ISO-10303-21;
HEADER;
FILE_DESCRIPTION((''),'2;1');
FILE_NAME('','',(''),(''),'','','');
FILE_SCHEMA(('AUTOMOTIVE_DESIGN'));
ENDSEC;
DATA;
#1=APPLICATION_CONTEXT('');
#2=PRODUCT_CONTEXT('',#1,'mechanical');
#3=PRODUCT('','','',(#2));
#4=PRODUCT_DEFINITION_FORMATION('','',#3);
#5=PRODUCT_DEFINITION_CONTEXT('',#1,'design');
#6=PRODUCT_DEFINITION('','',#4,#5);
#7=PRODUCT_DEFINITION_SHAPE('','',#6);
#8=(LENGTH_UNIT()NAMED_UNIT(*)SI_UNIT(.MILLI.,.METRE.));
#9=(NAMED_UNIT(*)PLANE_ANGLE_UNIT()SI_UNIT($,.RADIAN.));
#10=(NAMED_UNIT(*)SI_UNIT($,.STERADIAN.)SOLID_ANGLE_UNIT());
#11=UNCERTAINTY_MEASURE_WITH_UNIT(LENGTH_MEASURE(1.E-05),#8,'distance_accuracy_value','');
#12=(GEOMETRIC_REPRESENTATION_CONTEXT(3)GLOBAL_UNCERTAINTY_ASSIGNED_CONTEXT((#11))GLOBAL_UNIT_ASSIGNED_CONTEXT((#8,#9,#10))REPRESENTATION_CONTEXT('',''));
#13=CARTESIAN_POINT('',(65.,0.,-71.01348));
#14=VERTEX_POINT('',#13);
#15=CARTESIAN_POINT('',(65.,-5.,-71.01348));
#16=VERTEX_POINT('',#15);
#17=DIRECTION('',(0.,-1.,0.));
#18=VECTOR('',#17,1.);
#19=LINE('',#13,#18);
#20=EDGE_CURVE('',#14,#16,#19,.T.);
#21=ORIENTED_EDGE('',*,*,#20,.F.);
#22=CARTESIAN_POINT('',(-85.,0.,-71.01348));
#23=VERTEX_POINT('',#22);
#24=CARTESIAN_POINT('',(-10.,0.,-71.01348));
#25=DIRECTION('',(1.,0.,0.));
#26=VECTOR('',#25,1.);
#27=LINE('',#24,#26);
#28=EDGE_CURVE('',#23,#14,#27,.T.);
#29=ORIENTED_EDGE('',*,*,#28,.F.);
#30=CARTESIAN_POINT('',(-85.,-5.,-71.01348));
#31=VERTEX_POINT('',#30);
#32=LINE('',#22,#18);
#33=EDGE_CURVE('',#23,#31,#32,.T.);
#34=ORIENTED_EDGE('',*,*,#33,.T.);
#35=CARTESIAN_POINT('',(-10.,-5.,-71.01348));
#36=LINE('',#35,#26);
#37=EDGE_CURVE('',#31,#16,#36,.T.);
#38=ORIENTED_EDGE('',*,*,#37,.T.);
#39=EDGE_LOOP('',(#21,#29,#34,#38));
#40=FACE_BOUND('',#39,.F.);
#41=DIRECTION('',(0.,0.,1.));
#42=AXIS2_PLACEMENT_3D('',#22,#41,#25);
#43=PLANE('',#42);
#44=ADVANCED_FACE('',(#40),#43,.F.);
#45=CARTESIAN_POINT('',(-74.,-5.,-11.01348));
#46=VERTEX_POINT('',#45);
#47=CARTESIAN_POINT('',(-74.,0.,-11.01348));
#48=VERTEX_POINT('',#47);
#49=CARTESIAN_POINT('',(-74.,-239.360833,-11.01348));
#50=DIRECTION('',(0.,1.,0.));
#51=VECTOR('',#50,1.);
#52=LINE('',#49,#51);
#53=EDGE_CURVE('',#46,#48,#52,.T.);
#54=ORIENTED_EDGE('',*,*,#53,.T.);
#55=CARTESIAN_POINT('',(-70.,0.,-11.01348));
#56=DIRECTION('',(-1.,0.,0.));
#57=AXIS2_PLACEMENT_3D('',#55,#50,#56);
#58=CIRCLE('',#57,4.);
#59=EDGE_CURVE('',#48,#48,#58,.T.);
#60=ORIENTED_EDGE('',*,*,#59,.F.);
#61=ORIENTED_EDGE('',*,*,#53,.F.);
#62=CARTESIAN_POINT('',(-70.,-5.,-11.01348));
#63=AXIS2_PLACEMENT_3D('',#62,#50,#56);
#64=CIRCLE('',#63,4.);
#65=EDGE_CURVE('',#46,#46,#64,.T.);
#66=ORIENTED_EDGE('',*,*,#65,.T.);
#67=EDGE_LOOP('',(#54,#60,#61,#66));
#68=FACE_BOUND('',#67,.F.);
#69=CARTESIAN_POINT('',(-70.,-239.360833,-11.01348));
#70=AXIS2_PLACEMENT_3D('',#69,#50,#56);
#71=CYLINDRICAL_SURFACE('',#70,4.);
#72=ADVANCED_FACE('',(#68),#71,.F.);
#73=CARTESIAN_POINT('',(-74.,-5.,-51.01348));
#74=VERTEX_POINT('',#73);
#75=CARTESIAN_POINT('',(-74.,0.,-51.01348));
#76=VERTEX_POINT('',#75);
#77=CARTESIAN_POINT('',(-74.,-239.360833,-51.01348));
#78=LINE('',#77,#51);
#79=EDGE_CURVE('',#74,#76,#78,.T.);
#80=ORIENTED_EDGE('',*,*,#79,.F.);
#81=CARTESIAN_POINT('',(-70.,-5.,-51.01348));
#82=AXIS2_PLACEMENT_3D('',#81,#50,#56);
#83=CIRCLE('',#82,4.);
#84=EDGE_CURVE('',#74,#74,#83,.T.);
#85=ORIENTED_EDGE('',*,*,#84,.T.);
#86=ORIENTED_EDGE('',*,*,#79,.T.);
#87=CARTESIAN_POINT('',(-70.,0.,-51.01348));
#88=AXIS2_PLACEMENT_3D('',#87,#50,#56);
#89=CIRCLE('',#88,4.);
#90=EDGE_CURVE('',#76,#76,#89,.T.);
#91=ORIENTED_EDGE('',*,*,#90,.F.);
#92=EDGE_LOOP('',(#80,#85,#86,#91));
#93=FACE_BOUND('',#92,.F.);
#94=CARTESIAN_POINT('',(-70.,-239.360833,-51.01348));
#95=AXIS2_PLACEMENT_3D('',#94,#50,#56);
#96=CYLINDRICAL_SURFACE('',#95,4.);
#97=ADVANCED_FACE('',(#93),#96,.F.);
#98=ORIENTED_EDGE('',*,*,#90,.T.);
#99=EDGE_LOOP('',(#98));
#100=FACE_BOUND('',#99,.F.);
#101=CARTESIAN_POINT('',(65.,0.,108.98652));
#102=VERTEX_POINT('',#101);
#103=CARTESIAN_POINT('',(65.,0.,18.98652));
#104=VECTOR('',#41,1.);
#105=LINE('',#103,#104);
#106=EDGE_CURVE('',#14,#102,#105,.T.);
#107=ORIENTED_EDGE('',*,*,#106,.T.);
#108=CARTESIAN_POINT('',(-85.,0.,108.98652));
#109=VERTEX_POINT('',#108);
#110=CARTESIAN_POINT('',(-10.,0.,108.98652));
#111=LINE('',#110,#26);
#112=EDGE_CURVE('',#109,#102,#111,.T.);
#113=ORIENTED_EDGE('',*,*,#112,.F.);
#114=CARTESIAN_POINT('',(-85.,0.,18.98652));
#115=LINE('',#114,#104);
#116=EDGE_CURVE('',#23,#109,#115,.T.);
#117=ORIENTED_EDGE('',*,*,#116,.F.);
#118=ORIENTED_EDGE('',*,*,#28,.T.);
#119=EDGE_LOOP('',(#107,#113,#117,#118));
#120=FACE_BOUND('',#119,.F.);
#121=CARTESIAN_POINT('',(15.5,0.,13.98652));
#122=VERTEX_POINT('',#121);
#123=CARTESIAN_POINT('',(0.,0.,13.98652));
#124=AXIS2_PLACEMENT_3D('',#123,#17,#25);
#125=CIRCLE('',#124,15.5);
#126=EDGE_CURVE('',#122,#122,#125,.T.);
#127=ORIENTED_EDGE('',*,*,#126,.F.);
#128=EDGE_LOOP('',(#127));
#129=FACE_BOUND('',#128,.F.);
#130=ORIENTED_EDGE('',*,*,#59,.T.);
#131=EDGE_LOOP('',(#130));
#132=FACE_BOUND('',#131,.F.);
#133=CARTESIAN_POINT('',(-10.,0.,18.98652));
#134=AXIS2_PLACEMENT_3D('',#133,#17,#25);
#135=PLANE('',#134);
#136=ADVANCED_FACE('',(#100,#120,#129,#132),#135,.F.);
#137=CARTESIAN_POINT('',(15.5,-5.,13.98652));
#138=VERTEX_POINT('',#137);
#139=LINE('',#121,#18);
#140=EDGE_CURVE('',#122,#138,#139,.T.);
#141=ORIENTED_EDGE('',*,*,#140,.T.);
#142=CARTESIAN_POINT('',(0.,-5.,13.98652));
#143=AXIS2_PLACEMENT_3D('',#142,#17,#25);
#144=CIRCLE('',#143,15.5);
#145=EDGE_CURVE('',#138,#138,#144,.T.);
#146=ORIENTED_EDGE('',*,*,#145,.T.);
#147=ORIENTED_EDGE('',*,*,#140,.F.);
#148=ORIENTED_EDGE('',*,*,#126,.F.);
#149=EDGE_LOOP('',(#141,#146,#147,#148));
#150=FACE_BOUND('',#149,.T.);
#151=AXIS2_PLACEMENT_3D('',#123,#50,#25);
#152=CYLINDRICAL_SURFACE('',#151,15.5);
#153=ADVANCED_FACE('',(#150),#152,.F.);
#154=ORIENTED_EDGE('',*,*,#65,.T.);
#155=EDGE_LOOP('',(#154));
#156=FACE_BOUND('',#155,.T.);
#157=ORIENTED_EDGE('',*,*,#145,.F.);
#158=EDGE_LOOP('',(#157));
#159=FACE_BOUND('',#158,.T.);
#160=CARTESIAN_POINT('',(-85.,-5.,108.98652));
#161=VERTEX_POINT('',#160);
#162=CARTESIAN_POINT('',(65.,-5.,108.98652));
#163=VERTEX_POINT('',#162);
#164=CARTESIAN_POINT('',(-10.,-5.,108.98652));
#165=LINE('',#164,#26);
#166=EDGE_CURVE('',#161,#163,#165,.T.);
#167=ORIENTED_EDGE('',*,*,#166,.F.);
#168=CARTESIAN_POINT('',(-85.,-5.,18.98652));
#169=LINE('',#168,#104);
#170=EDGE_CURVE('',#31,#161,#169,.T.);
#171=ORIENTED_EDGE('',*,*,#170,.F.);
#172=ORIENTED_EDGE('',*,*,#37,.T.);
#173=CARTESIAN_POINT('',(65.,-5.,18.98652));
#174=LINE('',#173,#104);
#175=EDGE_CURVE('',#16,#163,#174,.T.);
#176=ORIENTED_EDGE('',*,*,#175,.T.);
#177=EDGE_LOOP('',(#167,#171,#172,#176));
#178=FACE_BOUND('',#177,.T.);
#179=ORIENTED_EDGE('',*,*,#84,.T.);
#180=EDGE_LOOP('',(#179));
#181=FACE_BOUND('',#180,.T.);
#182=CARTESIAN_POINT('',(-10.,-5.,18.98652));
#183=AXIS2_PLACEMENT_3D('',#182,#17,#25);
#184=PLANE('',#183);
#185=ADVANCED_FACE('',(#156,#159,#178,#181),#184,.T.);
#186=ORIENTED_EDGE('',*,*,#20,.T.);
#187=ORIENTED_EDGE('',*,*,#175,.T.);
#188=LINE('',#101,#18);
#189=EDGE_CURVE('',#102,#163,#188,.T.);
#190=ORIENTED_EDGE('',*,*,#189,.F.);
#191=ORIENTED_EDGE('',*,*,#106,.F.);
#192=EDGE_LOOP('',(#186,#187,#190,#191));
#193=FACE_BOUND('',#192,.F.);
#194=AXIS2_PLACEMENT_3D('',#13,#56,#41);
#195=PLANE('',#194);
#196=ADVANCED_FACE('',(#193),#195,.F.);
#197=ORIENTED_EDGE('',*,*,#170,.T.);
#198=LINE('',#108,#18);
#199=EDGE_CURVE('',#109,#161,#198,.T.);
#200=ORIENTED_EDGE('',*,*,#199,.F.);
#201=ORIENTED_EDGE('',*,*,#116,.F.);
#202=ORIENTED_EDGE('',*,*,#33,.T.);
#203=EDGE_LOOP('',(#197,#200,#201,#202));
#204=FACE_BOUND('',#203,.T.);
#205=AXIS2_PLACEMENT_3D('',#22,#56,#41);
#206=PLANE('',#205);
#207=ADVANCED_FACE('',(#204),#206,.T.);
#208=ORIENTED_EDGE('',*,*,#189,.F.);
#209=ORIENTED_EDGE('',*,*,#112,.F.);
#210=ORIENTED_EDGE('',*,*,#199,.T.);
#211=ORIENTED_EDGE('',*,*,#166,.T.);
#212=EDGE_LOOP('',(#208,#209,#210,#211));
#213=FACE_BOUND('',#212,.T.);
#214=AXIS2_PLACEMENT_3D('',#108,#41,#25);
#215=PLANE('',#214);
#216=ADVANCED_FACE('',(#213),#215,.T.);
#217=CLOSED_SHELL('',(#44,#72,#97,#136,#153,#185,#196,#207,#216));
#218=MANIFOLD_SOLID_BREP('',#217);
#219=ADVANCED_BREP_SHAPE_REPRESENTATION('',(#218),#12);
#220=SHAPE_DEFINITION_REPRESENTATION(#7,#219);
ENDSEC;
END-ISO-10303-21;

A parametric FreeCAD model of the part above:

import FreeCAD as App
import Part
import Sketcher

V = App.Vector
Q = App.Units.Quantity

doc = App.newDocument("Part")
body = doc.addObject("PartDesign::Body", "Body")

sketch1 = body.newObject("Sketcher::SketchObject", "Sketch")
sketch1.AttachmentSupport = (doc.getObject("XZ_Plane"), [""])
sketch1.MapMode = "FlatFace"
sketch1.addGeometry([
    Part.LineSegment(V(-85, 108.98652, 0), V(-85, -71.01348, 0)),
    Part.LineSegment(V(-85, -71.01348, 0), V(65, -71.01348, 0)),
    Part.LineSegment(V(65, -71.01348, 0), V(65, 108.98652, 0)),
    Part.LineSegment(V(65, 108.98652, 0), V(-85, 108.98652, 0)),
    Part.Circle(V(0, 13.98652, 0), V(0, 0, 1), 15.5),
], False)
sketch1.addConstraint([
    Sketcher.Constraint("Coincident", 0, 2, 1, 1),
    Sketcher.Constraint("Coincident", 1, 2, 2, 1),
    Sketcher.Constraint("Coincident", 2, 2, 3, 1),
    Sketcher.Constraint("Coincident", 3, 2, 0, 1),
    Sketcher.Constraint("Vertical", 0),
    Sketcher.Constraint("Horizontal", 1),
    Sketcher.Constraint("Vertical", 2),
    Sketcher.Constraint("Horizontal", 3),
    Sketcher.Constraint("PointOnObject", 4, 3, -2),
    Sketcher.Constraint("Diameter", 4, Q("31 mm")),
    Sketcher.Constraint("DistanceX", 1, 1, 1, 2, Q("150 mm")),
    Sketcher.Constraint("DistanceY", 0, 2, 0, 1, Q("180 mm")),
    Sketcher.Constraint("DistanceX", 0, 2, -1, 1, Q("85 mm")),
    Sketcher.Constraint("DistanceY", 0, 2, 4, 3, Q("85 mm")),
    Sketcher.Constraint("DistanceY", -1, 1, 4, 3, Q("13.98652 mm")),
])
pad1 = body.newObject("PartDesign::Pad", "Pad")
pad1.Profile = sketch1
pad1.Length = 5

sketch2 = body.newObject("Sketcher::SketchObject", "Sketch001")
sketch2.AttachmentSupport = (doc.getObject("XZ_Plane"), [""])
sketch2.MapMode = "FlatFace"
sketch2.AttachmentOffset = App.Placement(V(0, 0, 5), App.Rotation())
sketch2.addGeometry([
    Part.Circle(V(-70, -11.01348, 0), V(0, 0, 1), 4),
    Part.Circle(V(-70, -51.01348, 0), V(0, 0, 1), 4),
], False)
sketch2.addConstraint([
    Sketcher.Constraint("Equal", 0, 1),
    Sketcher.Constraint("Vertical", 0, 3, 1, 3),
    Sketcher.Constraint("Diameter", 0, Q("8 mm")),
    Sketcher.Constraint("DistanceX", 0, 3, -1, 1, Q("70 mm")),
    Sketcher.Constraint("DistanceY", 1, 3, 0, 3, Q("40 mm")),
    Sketcher.Constraint("DistanceY", 0, 3, -1, 1, Q("11.01348 mm")),
])
doc.recompute()
hole = body.newObject("PartDesign::Hole", "Hole")
hole.Profile = sketch2
hole.ThreadType = "None"
hole.Diameter = 8
hole.DepthType = "ThroughAll"

doc.recompute()
